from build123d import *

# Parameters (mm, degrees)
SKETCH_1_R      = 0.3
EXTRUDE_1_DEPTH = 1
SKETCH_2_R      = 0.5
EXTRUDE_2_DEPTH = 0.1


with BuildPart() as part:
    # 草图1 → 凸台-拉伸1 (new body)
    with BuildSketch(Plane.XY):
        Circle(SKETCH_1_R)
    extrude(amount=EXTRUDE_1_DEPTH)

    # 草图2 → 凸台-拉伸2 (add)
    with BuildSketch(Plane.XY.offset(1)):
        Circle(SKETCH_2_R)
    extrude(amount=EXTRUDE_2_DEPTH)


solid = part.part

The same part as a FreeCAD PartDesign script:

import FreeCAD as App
import Part
import Sketcher
from FreeCAD import Vector

doc = App.newDocument("Part")
params = doc.addObject("Spreadsheet::Sheet", "Params")
for row, (alias, value) in enumerate([
    ("sketch1_diameter", "0.6 mm"),
    ("pad1_length", "1 mm"),
    ("sketch2_diameter", "1 mm"),
    ("pad2_length", "0.1 mm"),
], start=1):
    params.set(f"A{row}", alias)
    params.set(f"B{row}", "=" + value)
    params.setAlias(f"B{row}", alias)

body = doc.addObject("PartDesign::Body", "Body")

# Sketch on XY plane
sketch1 = body.newObject("Sketcher::SketchObject", "Sketch")
sketch1.AttachmentSupport = (doc.getObject("XY_Plane"), [""])
sketch1.MapMode = "FlatFace"
sketch1.addGeometry(Part.Circle(Vector(0, 0, 0), Vector(0, 0, 1), 0.3), False)
sketch1.addConstraint(Sketcher.Constraint("Coincident", 0, 3, -1, 1))
sketch1.addConstraint(Sketcher.Constraint("Diameter", 0, 0.6))
sketch1.setExpression("Constraints[1]", "Params.sketch1_diameter")
pad1 = body.newObject("PartDesign::Pad", "Pad")
pad1.Profile = sketch1
pad1.setExpression("Length", "Params.pad1_length")

# Sketch on XY plane
sketch2 = body.newObject("Sketcher::SketchObject", "Sketch001")
sketch2.AttachmentSupport = (doc.getObject("XY_Plane"), [""])
sketch2.MapMode = "FlatFace"
sketch2.AttachmentOffset = App.Placement(Vector(0, 0, 1), App.Rotation())
sketch2.addGeometry(Part.Circle(Vector(0, 0, 0), Vector(0, 0, 1), 0.5), False)
sketch2.addConstraint(Sketcher.Constraint("Coincident", 0, 3, -1, 1))
sketch2.addConstraint(Sketcher.Constraint("Diameter", 0, 1.0))
sketch2.setExpression("Constraints[1]", "Params.sketch2_diameter")
pad2 = body.newObject("PartDesign::Pad", "Pad001")
pad2.Profile = sketch2
pad2.setExpression("Length", "Params.pad2_length")

doc.recompute()
